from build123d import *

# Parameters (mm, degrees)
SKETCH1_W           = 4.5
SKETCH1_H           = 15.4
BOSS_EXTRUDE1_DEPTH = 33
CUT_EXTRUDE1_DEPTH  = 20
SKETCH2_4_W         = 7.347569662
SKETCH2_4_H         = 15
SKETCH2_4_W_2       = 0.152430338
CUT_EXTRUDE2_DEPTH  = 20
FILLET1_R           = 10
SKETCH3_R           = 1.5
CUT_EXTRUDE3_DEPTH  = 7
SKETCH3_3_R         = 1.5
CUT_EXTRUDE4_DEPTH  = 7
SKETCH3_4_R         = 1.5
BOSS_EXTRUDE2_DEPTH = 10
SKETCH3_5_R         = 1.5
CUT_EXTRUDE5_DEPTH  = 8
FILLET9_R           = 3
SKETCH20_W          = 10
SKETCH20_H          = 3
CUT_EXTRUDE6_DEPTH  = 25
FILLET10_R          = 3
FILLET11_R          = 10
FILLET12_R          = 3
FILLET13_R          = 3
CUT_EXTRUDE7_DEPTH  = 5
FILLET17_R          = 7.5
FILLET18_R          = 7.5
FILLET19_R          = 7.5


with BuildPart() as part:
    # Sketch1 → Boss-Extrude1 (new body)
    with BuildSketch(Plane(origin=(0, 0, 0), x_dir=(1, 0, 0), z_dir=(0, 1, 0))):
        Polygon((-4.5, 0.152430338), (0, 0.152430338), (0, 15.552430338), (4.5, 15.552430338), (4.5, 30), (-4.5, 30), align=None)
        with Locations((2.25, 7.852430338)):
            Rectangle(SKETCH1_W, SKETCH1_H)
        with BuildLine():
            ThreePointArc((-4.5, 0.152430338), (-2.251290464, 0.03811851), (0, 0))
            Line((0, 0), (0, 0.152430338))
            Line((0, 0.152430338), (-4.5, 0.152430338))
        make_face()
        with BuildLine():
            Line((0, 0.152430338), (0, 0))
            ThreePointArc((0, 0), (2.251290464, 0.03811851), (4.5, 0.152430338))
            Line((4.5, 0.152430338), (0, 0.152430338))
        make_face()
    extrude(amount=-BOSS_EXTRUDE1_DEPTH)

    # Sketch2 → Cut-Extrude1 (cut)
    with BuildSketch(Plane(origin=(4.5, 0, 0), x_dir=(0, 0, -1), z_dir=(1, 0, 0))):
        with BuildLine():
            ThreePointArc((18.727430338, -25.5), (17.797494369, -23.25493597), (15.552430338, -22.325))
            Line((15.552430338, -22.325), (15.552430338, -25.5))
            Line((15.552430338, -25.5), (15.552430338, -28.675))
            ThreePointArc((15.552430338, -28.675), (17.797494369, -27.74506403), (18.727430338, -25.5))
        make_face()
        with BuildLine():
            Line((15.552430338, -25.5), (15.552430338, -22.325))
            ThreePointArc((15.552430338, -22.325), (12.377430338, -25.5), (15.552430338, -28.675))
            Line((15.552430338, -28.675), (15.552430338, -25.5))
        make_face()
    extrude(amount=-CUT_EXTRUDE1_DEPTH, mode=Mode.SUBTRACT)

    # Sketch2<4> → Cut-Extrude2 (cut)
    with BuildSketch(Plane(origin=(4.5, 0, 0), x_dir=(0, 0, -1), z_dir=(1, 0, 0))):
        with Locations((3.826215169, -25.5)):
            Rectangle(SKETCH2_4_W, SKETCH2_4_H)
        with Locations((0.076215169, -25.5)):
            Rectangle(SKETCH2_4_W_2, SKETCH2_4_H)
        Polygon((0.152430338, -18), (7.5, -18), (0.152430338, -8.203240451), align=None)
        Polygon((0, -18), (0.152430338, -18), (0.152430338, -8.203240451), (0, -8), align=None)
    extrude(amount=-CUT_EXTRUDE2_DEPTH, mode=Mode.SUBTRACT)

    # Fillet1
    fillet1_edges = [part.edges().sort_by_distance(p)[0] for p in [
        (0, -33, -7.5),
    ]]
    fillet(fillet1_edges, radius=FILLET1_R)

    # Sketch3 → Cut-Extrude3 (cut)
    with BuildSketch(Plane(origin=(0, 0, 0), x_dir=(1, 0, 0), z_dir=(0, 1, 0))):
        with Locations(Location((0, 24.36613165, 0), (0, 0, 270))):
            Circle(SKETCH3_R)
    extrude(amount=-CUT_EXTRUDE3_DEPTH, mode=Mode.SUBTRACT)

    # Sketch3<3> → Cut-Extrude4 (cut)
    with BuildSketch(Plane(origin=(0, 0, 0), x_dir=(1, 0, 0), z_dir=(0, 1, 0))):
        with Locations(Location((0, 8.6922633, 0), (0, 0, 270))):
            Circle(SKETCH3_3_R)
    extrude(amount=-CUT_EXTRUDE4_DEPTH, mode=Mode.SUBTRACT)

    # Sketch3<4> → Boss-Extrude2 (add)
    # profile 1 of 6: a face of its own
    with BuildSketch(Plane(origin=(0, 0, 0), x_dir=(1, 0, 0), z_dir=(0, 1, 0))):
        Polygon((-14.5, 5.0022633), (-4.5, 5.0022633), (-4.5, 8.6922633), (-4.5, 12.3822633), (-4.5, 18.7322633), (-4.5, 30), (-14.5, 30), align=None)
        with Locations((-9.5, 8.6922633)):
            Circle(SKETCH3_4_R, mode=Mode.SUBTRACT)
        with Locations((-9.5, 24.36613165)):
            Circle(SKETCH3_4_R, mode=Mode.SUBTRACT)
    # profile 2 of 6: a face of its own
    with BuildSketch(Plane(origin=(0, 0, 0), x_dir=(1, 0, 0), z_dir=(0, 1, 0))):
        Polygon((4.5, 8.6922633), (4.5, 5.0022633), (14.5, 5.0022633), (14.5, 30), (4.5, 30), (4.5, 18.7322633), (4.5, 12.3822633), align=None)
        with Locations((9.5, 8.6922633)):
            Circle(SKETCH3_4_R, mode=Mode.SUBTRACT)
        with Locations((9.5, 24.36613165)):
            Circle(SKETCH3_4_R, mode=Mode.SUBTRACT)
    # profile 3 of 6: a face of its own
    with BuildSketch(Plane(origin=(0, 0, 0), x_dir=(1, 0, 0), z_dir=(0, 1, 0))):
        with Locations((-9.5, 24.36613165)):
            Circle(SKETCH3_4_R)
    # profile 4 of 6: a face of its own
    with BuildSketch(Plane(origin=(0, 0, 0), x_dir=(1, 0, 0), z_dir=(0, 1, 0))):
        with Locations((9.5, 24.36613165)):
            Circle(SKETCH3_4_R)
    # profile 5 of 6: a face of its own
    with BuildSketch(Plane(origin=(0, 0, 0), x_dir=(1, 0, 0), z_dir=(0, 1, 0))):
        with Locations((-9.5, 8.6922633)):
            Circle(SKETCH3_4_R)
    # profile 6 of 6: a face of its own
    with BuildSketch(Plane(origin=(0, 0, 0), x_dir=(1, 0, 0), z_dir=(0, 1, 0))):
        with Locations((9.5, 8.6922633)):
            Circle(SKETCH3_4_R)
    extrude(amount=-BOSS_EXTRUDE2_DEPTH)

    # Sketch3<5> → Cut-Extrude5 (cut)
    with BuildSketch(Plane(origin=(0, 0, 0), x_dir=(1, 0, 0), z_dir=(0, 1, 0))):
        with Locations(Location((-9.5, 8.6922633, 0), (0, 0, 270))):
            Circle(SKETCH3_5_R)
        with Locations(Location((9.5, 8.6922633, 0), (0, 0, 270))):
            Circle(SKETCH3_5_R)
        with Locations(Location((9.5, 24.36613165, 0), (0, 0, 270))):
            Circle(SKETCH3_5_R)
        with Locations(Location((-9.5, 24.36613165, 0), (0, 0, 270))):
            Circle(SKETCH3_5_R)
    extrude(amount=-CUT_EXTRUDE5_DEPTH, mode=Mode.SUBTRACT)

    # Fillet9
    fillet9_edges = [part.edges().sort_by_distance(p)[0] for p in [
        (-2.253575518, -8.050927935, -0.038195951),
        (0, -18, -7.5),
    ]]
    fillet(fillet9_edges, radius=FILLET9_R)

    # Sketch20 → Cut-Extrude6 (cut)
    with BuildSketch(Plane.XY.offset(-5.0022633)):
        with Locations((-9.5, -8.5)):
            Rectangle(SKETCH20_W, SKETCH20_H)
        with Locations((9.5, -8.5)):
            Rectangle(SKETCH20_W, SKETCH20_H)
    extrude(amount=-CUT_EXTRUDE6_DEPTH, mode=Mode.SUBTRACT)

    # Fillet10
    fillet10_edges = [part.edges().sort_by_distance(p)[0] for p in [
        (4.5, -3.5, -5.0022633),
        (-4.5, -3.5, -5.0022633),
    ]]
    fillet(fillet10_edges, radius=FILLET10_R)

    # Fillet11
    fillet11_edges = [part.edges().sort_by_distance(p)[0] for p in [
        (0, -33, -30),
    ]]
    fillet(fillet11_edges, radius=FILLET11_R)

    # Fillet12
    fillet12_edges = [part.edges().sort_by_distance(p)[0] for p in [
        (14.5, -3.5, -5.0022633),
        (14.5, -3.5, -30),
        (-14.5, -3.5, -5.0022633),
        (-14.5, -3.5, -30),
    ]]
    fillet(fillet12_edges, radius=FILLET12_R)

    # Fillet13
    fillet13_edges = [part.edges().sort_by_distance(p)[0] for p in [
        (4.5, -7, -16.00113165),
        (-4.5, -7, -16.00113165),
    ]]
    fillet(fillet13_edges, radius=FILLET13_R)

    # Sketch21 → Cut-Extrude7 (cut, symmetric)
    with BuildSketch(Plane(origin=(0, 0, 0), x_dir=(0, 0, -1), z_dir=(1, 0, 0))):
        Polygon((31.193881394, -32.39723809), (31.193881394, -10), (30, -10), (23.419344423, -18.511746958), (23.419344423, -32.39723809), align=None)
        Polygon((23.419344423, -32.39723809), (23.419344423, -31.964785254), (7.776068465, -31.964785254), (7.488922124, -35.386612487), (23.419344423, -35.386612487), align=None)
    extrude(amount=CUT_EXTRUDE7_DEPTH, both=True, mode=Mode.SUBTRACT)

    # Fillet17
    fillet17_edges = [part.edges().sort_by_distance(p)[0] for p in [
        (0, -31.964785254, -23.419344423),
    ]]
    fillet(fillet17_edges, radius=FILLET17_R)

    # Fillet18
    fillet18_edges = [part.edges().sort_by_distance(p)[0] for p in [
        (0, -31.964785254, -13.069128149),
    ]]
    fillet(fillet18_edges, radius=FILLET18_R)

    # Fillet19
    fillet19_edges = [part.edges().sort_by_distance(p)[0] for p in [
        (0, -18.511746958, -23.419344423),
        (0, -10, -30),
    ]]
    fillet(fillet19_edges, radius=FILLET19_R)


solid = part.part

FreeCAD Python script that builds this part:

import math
import FreeCAD as App
import Part
import Sketcher
from FreeCAD import Vector
Q = App.Units.Quantity


def edges_at(feature, points):
    """Names of the edges that pass closest to the given points."""
    edges = feature.Shape.Edges
    near = lambda p: min(range(len(edges)), key=lambda i: edges[i].distToShape(Part.Vertex(*p))[0])
    return sorted({f"Edge{near(p) + 1}" for p in points})


def add_polygon(sketch, points):
    """Adds a closed chain of lines whose ends are joined by coincident constraints."""
    first, n = sketch.GeometryCount, len(points)
    for a, b in zip(points, points[1:] + points[:1]):
        sketch.addGeometry(Part.LineSegment(App.Vector(*a, 0), App.Vector(*b, 0)), False)
    for i in range(n):
        sketch.addConstraint(Sketcher.Constraint("Coincident", first + i, 2, first + (i + 1) % n, 1))

doc = App.newDocument("Part")
params = doc.addObject("Spreadsheet::Sheet", "Params")
for row, (alias, value) in enumerate([
    ("sketch1_radius", "66.500001 mm"),
    ("sketch1_width", "9 mm"),
    ("pad1_length", "33 mm"),
    ("pocket1_length", "20 mm"),
    ("sketch3_width", "15 mm"),
    ("sketch3_width2", "25 mm"),
    ("sketch3_height", "7.5 mm"),
    ("pocket2_length", "20 mm"),
    ("fillet_radius", "10 mm"),
    ("sketch4_diameter", "3 mm"),
    ("pocket3_length", "7 mm"),
    ("sketch5_diameter", "3 mm"),
    ("pocket4_length", "7 mm"),
    ("sketch6_width", "10 mm"),
    ("pad2_length", "10 mm"),
    ("sketch7_diameter", "3 mm"),
    ("pocket5_length", "8 mm"),
    ("fillet2_radius", "3 mm"),
    ("sketch8_width", "10 mm"),
    ("sketch8_height", "3 mm"),
    ("pocket6_length", "25 mm"),
    ("fillet3_radius", "3 mm"),
    ("fillet4_radius", "10 mm"),
    ("fillet5_radius", "3 mm"),
    ("fillet6_radius", "3 mm"),
    ("pocket7_length", "10 mm"),
    ("fillet7_radius", "7.5 mm"),
    ("fillet8_radius", "7.5 mm"),
    ("fillet9_radius", "7.5 mm"),
], start=1):
    params.set(f"A{row}", alias)
    params.set(f"B{row}", "=" + value)
    params.setAlias(f"B{row}", alias)

body = doc.addObject("PartDesign::Body", "Body")

# Sketch on XZ plane
sketch1 = body.newObject("Sketcher::SketchObject", "Sketch")
sketch1.AttachmentSupport = (doc.getObject("XZ_Plane"), [""])
sketch1.MapMode = "FlatFace"
sketch1.addGeometry([
    Part.LineSegment(Vector(4.5, -0.15243, 0), Vector(4.5, -30, 0)),  # 0
    Part.LineSegment(Vector(4.5, -30, 0), Vector(-4.5, -30, 0)),  # 1
    Part.LineSegment(Vector(-4.5, -30, 0), Vector(-4.5, -0.15243, 0)),  # 2
    Part.ArcOfCircle(Part.Circle(Vector(0, -66.500001, 0), Vector(0, 0, 1), 66.500001), math.radians(90), math.radians(93.880123)),  # 3
    Part.ArcOfCircle(Part.Circle(Vector(0, -66.500001, 0), Vector(0, 0, 1), 66.500001), math.radians(86.119877), math.radians(90)),  # 4
], False)
sketch1.addConstraint([
    Sketcher.Constraint("Coincident", 0, 2, 1, 1),
    Sketcher.Constraint("Coincident", 1, 2, 2, 1),
    Sketcher.Constraint("Coincident", 2, 2, 3, 2),
    Sketcher.Constraint("Tangent", 3, 1, 4, 2),
    Sketcher.Constraint("Coincident", 4, 1, 0, 1),
    Sketcher.Constraint("Vertical", 0),
    Sketcher.Constraint("Horizontal", 1),
    Sketcher.Constraint("Vertical", 2),
    Sketcher.Constraint("Coincident", 3, 1, -1, 1),
    Sketcher.Constraint("Equal", 3, 4),
    Sketcher.Constraint("Symmetric", 2, 2, 4, 1, -2),
    Sketcher.Constraint("Radius", 3, Q("66.500001 mm")),
    Sketcher.Constraint("DistanceX", 1, 2, 1, 1, Q("9 mm")),
    Sketcher.Constraint("DistanceY", 0, 2, -1, 1, Q("30 mm")),
])
sketch1.setExpression("Constraints[11]", "Params.sketch1_radius")
sketch1.setExpression("Constraints[12]", "Params.sketch1_width")
pad1 = body.newObject("PartDesign::Pad", "Pad")
pad1.Profile = sketch1
pad1.setExpression("Length", "Params.pad1_length")

# Sketch on YZ plane
sketch2 = body.newObject("Sketcher::SketchObject", "Sketch001")
sketch2.AttachmentSupport = (doc.getObject("YZ_Plane"), [""])
sketch2.MapMode = "FlatFace"
sketch2.AttachmentOffset = App.Placement(Vector(0, 0, 4.5), App.Rotation())
sketch2.addGeometry([
    Part.ArcOfCircle(Part.Circle(Vector(-25.5, -15.55243, 0), Vector(0, 0, 1), 3.175), math.radians(-90), math.radians(0)),
    Part.ArcOfCircle(Part.Circle(Vector(-25.5, -15.55243, 0), Vector(0, 0, 1), 3.175), math.radians(0), math.radians(180)),
    Part.ArcOfCircle(Part.Circle(Vector(-25.5, -15.55243, 0), Vector(0, 0, 1), 3.175), math.radians(180), math.radians(270)),
], False)
sketch2.addConstraint([
    Sketcher.Constraint("Tangent", 0, 2, 1, 1),
    Sketcher.Constraint("Tangent", 1, 2, 2, 1),
    Sketcher.Constraint("Tangent", 2, 2, 0, 1),
    Sketcher.Constraint("Horizontal", 2, 3, 0, 2),
    Sketcher.Constraint("Horizontal", 0, 2, 1, 2),
    Sketcher.Constraint("Vertical", 1, 3, 2, 2),
    Sketcher.Constraint("Radius", 0, Q("3.175 mm")),
    Sketcher.Constraint("DistanceX", 0, 3, -1, 1, Q("25.5 mm")),
    Sketcher.Constraint("DistanceY", 0, 3, -1, 1, Q("15.55243 mm")),
])
pocket1 = body.newObject("PartDesign::Pocket", "Pocket")
pocket1.Profile = sketch2
pocket1.setExpression("Length", "Params.pocket1_length")

# Sketch on YZ plane
sketch3 = body.newObject("Sketcher::SketchObject", "Sketch002")
sketch3.AttachmentSupport = (doc.getObject("YZ_Plane"), [""])
sketch3.MapMode = "FlatFace"
sketch3.AttachmentOffset = App.Placement(Vector(0, 0, 4.5), App.Rotation())
add_polygon(sketch3, [(-33, -7.5), (-18, -7.5), (-8.20324, -0.15243), (-8, 0), (-33, 0)])  # lines 0-4
sketch3.addConstraint([
    Sketcher.Constraint("Horizontal", 0),
    Sketcher.Constraint("Horizontal", 3),
    Sketcher.Constraint("Vertical", 4),
    Sketcher.Constraint("PointOnObject", 2, 2, -1),
    Sketcher.Constraint("Parallel", 1, 2),
    Sketcher.Constraint("DistanceX", 0, 1, 0, 2, Q("15 mm")),
    Sketcher.Constraint("DistanceX", 3, 2, 3, 1, Q("25 mm")),
    Sketcher.Constraint("DistanceY", 4, 2, 4, 1, Q("7.5 mm")),
    Sketcher.Constraint("DistanceX", 0, 2, -1, 1, Q("18 mm")),
    Sketcher.Constraint("Distance", 1, Q("12.245949 mm")),
])
sketch3.setExpression("Constraints[10]", "Params.sketch3_width")
sketch3.setExpression("Constraints[11]", "Params.sketch3_width2")
sketch3.setExpression("Constraints[12]", "Params.sketch3_height")
pocket2 = body.newObject("PartDesign::Pocket", "Pocket001")
pocket2.Profile = sketch3
pocket2.setExpression("Length", "Params.pocket2_length")
doc.recompute()

fillet = body.newObject("PartDesign::Fillet", "Fillet")
fillet.Base = (pocket2, edges_at(pocket2, [(0, -33, -7.5)]))
fillet.setExpression("Radius", "Params.fillet_radius")

# Sketch on XZ plane
sketch4 = body.newObject("Sketcher::SketchObject", "Sketch003")
sketch4.AttachmentSupport = (doc.getObject("XZ_Plane"), [""])
sketch4.MapMode = "FlatFace"
sketch4.addGeometry(Part.Circle(Vector(0, -24.366132, 0), Vector(0, 0, 1), 1.5), False)
sketch4.addConstraint([
    Sketcher.Constraint("PointOnObject", 0, 3, -2),
    Sketcher.Constraint("Diameter", 0, Q("3 mm")),
    Sketcher.Constraint("DistanceY", 0, 3, -1, 1, Q("24.366132 mm")),
])
sketch4.setExpression("Constraints[1]", "Params.sketch4_diameter")
pocket3 = body.newObject("PartDesign::Pocket", "Pocket002")
pocket3.Profile = sketch4
pocket3.setExpression("Length", "Params.pocket3_length")
pocket3.Reversed = True

# Sketch on XZ plane
sketch5 = body.newObject("Sketcher::SketchObject", "Sketch004")
sketch5.AttachmentSupport = (doc.getObject("XZ_Plane"), [""])
sketch5.MapMode = "FlatFace"
sketch5.addGeometry(Part.Circle(Vector(0, -8.692263, 0), Vector(0, 0, 1), 1.5), False)
sketch5.addConstraint([
    Sketcher.Constraint("PointOnObject", 0, 3, -2),
    Sketcher.Constraint("Diameter", 0, Q("3 mm")),
    Sketcher.Constraint("DistanceY", 0, 3, -1, 1, Q("8.692263 mm")),
])
sketch5.setExpression("Constraints[1]", "Params.sketch5_diameter")
pocket4 = body.newObject("PartDesign::Pocket", "Pocket003")
pocket4.Profile = sketch5
pocket4.setExpression("Length", "Params.pocket4_length")
pocket4.Reversed = True

# Sketch on XZ plane
sketch6 = body.newObject("Sketcher::SketchObject", "Sketch005")
sketch6.AttachmentSupport = (doc.getObject("XZ_Plane"), [""])
sketch6.MapMode = "FlatFace"
add_polygon(sketch6, [(-14.5, -5.002263), (-4.5, -5.002263), (-4.5, -30), (-14.5, -30)])  # lines 0-3
add_polygon(sketch6, [(4.5, -5.002263), (14.5, -5.002263), (14.5, -30), (4.5, -30)])  # lines 4-7
sketch6.addConstraint([
    Sketcher.Constraint("Horizontal", 0),
    Sketcher.Constraint("Vertical", 1),
    Sketcher.Constraint("Horizontal", 2),
    Sketcher.Constraint("Vertical", 3),
    Sketcher.Constraint("Horizontal", 4),
    Sketcher.Constraint("Vertical", 5),
    Sketcher.Constraint("Horizontal", 6),
    Sketcher.Constraint("Vertical", 7),
    Sketcher.Constraint("Symmetric", 3, 2, 4, 2, -2),
    Sketcher.Constraint("Symmetric", 1, 2, 6, 2, -2),
    Sketcher.Constraint("DistanceX", 0, 1, 0, 2, Q("10 mm")),
    Sketcher.Constraint("DistanceY", 1, 2, -1, 1, Q("30 mm")),
    Sketcher.Constraint("DistanceX", 0, 2, 4, 2, Q("19 mm")),
    Sketcher.Constraint("DistanceY", 1, 2, 1, 1, Q("24.997737 mm")),
])
sketch6.setExpression("Constraints[18]", "Params.sketch6_width")
pad2 = body.newObject("PartDesign::Pad", "Pad001")
pad2.Profile = sketch6
pad2.setExpression("Length", "Params.pad2_length")

# Sketch on XZ plane
sketch7 = body.newObject("Sketcher::SketchObject", "Sketch006")
sketch7.AttachmentSupport = (doc.getObject("XZ_Plane"), [""])
sketch7.MapMode = "FlatFace"
sketch7.addGeometry([
    Part.Circle(Vector(-9.5, -8.692263, 0), Vector(0, 0, 1), 1.5),
    Part.Circle(Vector(9.5, -8.692263, 0), Vector(0, 0, 1), 1.5),
    Part.Circle(Vector(9.5, -24.366132, 0), Vector(0, 0, 1), 1.5),
    Part.Circle(Vector(-9.5, -24.366132, 0), Vector(0, 0, 1), 1.5),
], False)
sketch7.addConstraint([
    Sketcher.Constraint("Equal", 0, 1),
    Sketcher.Constraint("Equal", 1, 2),
    Sketcher.Constraint("Equal", 2, 3),
    Sketcher.Constraint("Symmetric", 0, 3, 1, 3, -2),
    Sketcher.Constraint("Symmetric", 2, 3, 3, 3, -2),
    Sketcher.Constraint("Vertical", 1, 3, 2, 3),
    Sketcher.Constraint("Diameter", 0, Q("3 mm")),
    Sketcher.Constraint("DistanceX", 0, 3, 1, 3, Q("19 mm")),
    Sketcher.Constraint("DistanceY", 2, 3, -1, 1, Q("24.366132 mm")),
    Sketcher.Constraint("DistanceY", 2, 3, 1, 3, Q("15.673868 mm")),
])
sketch7.setExpression("Constraints[6]", "Params.sketch7_diameter")
pocket5 = body.newObject("PartDesign::Pocket", "Pocket004")
pocket5.Profile = sketch7
pocket5.setExpression("Length", "Params.pocket5_length")
pocket5.Reversed = True
doc.recompute()

fillet2 = body.newObject("PartDesign::Fillet", "Fillet001")
fillet2.Base = (pocket5, edges_at(pocket5, [(-2.254, -8.051, -0.038), (0, -18, -7.5)]))
fillet2.setExpression("Radius", "Params.fillet2_radius")

# Sketch on XY plane
sketch8 = body.newObject("Sketcher::SketchObject", "Sketch007")
sketch8.AttachmentSupport = (doc.getObject("XY_Plane"), [""])
sketch8.MapMode = "FlatFace"
sketch8.AttachmentOffset = App.Placement(Vector(0, 0, -5.002263), App.Rotation())
add_polygon(sketch8, [(-14.5, -7), (-14.5, -10), (-4.5, -10), (-4.5, -7)])  # lines 0-3
add_polygon(sketch8, [(4.5, -7), (4.5, -10), (14.5, -10), (14.5, -7)])  # lines 4-7
sketch8.addConstraint([
    Sketcher.Constraint("Vertical", 0),
    Sketcher.Constraint("Horizontal", 1),
    Sketcher.Constraint("Vertical", 2),
    Sketcher.Constraint("Horizontal", 3),
    Sketcher.Constraint("Vertical", 4),
    Sketcher.Constraint("Horizontal", 5),
    Sketcher.Constraint("Vertical", 6),
    Sketcher.Constraint("Horizontal", 7),
    Sketcher.Constraint("Symmetric", 1, 2, 4, 2, -2),
    Sketcher.Constraint("Symmetric", 3, 2, 6, 2, -2),
    Sketcher.Constraint("DistanceX", 1, 1, 1, 2, Q("10 mm")),
    Sketcher.Constraint("DistanceY", 0, 2, 0, 1, Q("3 mm")),
    Sketcher.Constraint("DistanceY", 0, 2, -1, 1, Q("10 mm")),
    Sketcher.Constraint("DistanceX", 1, 2, 4, 2, Q("9 mm")),
])
sketch8.setExpression("Constraints[18]", "Params.sketch8_width")
sketch8.setExpression("Constraints[19]", "Params.sketch8_height")
pocket6 = body.newObject("PartDesign::Pocket", "Pocket005")
pocket6.Profile = sketch8
pocket6.setExpression("Length", "Params.pocket6_length")
doc.recompute()

fillet3 = body.newObject("PartDesign::Fillet", "Fillet002")
fillet3.Base = (pocket6, edges_at(pocket6, [(4.5, -3.5, -5.002), (-4.5, -3.5, -5.002)]))
fillet3.setExpression("Radius", "Params.fillet3_radius")
doc.recompute()

fillet4 = body.newObject("PartDesign::Fillet", "Fillet003")
fillet4.Base = (fillet3, edges_at(fillet3, [(0, -33, -30)]))
fillet4.setExpression("Radius", "Params.fillet4_radius")
doc.recompute()

fillet5 = body.newObject("PartDesign::Fillet", "Fillet004")
fillet5.Base = (fillet4, edges_at(fillet4, [
    (14.5, -3.5, -5.002),
    (14.5, -3.5, -30),
    (-14.5, -3.5, -5.002),
    (-14.5, -3.5, -30),
]))
fillet5.setExpression("Radius", "Params.fillet5_radius")
doc.recompute()

fillet6 = body.newObject("PartDesign::Fillet", "Fillet005")
fillet6.Base = (fillet5, edges_at(fillet5, [(4.5, -7, -16.001), (-4.5, -7, -16.001)]))
fillet6.setExpression("Radius", "Params.fillet6_radius")

# Sketch on YZ plane
sketch9 = body.newObject("Sketcher::SketchObject", "Sketch008")
sketch9.AttachmentSupport = (doc.getObject("YZ_Plane"), [""])
sketch9.MapMode = "FlatFace"
add_polygon(sketch9, [(-32.397238, -31.193881), (-10, -31.193881), (-10, -30), (-18.511747, -23.419344), (-31.964785, -23.419344), (-31.964785, -7.776068), (-35.386612, -7.488922), (-35.386612, -23.419344), (-32.397238, -23.419344)])  # lines 0-8
sketch9.addConstraint([
    Sketcher.Constraint("Horizontal", 0),
    Sketcher.Constraint("Vertical", 1),
    Sketcher.Constraint("Horizontal", 3),
    Sketcher.Constraint("Vertical", 4),
    Sketcher.Constraint("Vertical", 6),
    Sketcher.Constraint("Horizontal", 7),
    Sketcher.Constraint("Vertical", 8),
    Sketcher.Constraint("Horizontal", 3, 2, 6, 2),
    Sketcher.Constraint("DistanceX", 0, 2, -1, 1, Q("10 mm")),
    Sketcher.Constraint("DistanceY", 1, 2, -1, 1, Q("30 mm")),
    Sketcher.Constraint("DistanceX", 0, 1, 0, 2, Q("22.397238 mm")),
    Sketcher.Constraint("DistanceX", 3, 2, 3, 1, Q("13.453038 mm")),
    Sketcher.Constraint("DistanceY", 1, 1, 1, 2, Q("1.193881 mm")),
    Sketcher.Constraint("DistanceX", 7, 1, 7, 2, Q("2.989374 mm")),
    Sketcher.Constraint("DistanceY", 4, 1, 4, 2, Q("15.643276 mm")),
    Sketcher.Constraint("DistanceY", 6, 2, 6, 1, Q("15.930422 mm")),
    Sketcher.Constraint("DistanceY", 8, 2, 8, 1, Q("7.774537 mm")),
    Sketcher.Constraint("DistanceX", 7, 2, 2, 2, Q("13.885491 mm")),
])
pocket7 = body.newObject("PartDesign::Pocket", "Pocket006")
pocket7.Profile = sketch9
pocket7.setExpression("Length", "Params.pocket7_length")
pocket7.Midplane = True
doc.recompute()

fillet7 = body.newObject("PartDesign::Fillet", "Fillet006")
fillet7.Base = (pocket7, edges_at(pocket7, [(0, -31.965, -23.419)]))
fillet7.setExpression("Radius", "Params.fillet7_radius")
doc.recompute()

fillet8 = body.newObject("PartDesign::Fillet", "Fillet007")
fillet8.Base = (fillet7, edges_at(fillet7, [(0, -31.965, -13.069)]))
fillet8.setExpression("Radius", "Params.fillet8_radius")
doc.recompute()

fillet9 = body.newObject("PartDesign::Fillet", "Fillet008")
fillet9.Base = (fillet8, edges_at(fillet8, [(0, -18.512, -23.419), (0, -10, -30)]))
fillet9.setExpression("Radius", "Params.fillet9_radius")

doc.recompute()
